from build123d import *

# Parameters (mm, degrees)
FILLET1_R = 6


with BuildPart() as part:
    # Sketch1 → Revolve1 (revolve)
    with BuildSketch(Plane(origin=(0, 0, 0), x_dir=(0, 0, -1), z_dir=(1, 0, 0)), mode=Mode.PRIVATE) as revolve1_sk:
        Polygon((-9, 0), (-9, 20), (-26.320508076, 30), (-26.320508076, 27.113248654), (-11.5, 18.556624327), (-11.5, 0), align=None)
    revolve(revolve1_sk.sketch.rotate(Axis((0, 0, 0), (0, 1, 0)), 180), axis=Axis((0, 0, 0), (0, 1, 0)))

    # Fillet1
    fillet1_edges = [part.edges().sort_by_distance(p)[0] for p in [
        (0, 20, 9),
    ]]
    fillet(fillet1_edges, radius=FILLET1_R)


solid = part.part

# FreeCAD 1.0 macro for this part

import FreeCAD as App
import Part
import Sketcher

V = App.Vector
Q = App.Units.Quantity


def edges_at(feature, points):
    """Names of the edges that pass closest to the given points."""
    edges = feature.Shape.Edges
    near = lambda p: min(range(len(edges)), key=lambda i: edges[i].distToShape(Part.Vertex(*p))[0])
    return sorted({f"Edge{near(p) + 1}" for p in points})

doc = App.newDocument("Part")
body = doc.addObject("PartDesign::Body", "Body")

# Sketch on YZ plane
sketch1 = body.newObject("Sketcher::SketchObject", "Sketch")
sketch1.AttachmentSupport = (doc.getObject("YZ_Plane"), [""])
sketch1.MapMode = "FlatFace"
sketch1.addGeometry(Part.LineSegment(V(0, 9, 0), V(20, 9, 0)), False)
sketch1.addGeometry(Part.LineSegment(V(20, 9, 0), V(30, 26.3, 0)), False)
sketch1.addGeometry(Part.LineSegment(V(30, 26.3, 0), V(27.1, 26.3, 0)), False)
sketch1.addGeometry(Part.LineSegment(V(27.1, 26.3, 0), V(18.6, 11.5, 0)), False)
sketch1.addGeometry(Part.LineSegment(V(18.6, 11.5, 0), V(0, 11.5, 0)), False)
sketch1.addGeometry(Part.LineSegment(V(0, 11.5, 0), V(0, 9, 0)), False)
sketch1.addConstraint(Sketcher.Constraint("Coincident", 0, 2, 1, 1))
sketch1.addConstraint(Sketcher.Constraint("Coincident", 1, 2, 2, 1))
sketch1.addConstraint(Sketcher.Constraint("Coincident", 2, 2, 3, 1))
sketch1.addConstraint(Sketcher.Constraint("Coincident", 3, 2, 4, 1))
sketch1.addConstraint(Sketcher.Constraint("Coincident", 4, 2, 5, 1))
sketch1.addConstraint(Sketcher.Constraint("Coincident", 5, 2, 0, 1))
sketch1.addConstraint(Sketcher.Constraint("Horizontal", 0))
sketch1.addConstraint(Sketcher.Constraint("Horizontal", 2))
sketch1.addConstraint(Sketcher.Constraint("Horizontal", 4))
sketch1.addConstraint(Sketcher.Constraint("Vertical", 5))
sketch1.addConstraint(Sketcher.Constraint("PointOnObject", 4, 2, -2))
sketch1.addConstraint(Sketcher.Constraint("Parallel", 1, 3))
sketch1.addConstraint(Sketcher.Constraint("DistanceX", 0, 1, 0, 2, Q("20 mm")))
sketch1.addConstraint(Sketcher.Constraint("Angle", 1, Q("60 deg")))
sketch1.addConstraint(Sketcher.Constraint("Distance", 1, Q("20 mm")))
sketch1.addConstraint(Sketcher.Constraint("DistanceY", 5, 2, 5, 1, Q("2.5 mm")))
sketch1.addConstraint(Sketcher.Constraint("DistanceY", -1, 1, 0, 2, Q("9 mm")))
sketch1.addConstraint(Sketcher.Constraint("DistanceX", 2, 2, 2, 1, Q("2.886751 mm")))
revolution = body.newObject("PartDesign::Revolution", "Revolution")
revolution.Profile = sketch1
revolution.ReferenceAxis = (sketch1, ["H_Axis"])
revolution.Angle = 360
doc.recompute()

fillet = body.newObject("PartDesign::Fillet", "Fillet")
fillet.Base = (revolution, edges_at(revolution, [(0, 20, 9)]))
fillet.Radius = 6

doc.recompute()
